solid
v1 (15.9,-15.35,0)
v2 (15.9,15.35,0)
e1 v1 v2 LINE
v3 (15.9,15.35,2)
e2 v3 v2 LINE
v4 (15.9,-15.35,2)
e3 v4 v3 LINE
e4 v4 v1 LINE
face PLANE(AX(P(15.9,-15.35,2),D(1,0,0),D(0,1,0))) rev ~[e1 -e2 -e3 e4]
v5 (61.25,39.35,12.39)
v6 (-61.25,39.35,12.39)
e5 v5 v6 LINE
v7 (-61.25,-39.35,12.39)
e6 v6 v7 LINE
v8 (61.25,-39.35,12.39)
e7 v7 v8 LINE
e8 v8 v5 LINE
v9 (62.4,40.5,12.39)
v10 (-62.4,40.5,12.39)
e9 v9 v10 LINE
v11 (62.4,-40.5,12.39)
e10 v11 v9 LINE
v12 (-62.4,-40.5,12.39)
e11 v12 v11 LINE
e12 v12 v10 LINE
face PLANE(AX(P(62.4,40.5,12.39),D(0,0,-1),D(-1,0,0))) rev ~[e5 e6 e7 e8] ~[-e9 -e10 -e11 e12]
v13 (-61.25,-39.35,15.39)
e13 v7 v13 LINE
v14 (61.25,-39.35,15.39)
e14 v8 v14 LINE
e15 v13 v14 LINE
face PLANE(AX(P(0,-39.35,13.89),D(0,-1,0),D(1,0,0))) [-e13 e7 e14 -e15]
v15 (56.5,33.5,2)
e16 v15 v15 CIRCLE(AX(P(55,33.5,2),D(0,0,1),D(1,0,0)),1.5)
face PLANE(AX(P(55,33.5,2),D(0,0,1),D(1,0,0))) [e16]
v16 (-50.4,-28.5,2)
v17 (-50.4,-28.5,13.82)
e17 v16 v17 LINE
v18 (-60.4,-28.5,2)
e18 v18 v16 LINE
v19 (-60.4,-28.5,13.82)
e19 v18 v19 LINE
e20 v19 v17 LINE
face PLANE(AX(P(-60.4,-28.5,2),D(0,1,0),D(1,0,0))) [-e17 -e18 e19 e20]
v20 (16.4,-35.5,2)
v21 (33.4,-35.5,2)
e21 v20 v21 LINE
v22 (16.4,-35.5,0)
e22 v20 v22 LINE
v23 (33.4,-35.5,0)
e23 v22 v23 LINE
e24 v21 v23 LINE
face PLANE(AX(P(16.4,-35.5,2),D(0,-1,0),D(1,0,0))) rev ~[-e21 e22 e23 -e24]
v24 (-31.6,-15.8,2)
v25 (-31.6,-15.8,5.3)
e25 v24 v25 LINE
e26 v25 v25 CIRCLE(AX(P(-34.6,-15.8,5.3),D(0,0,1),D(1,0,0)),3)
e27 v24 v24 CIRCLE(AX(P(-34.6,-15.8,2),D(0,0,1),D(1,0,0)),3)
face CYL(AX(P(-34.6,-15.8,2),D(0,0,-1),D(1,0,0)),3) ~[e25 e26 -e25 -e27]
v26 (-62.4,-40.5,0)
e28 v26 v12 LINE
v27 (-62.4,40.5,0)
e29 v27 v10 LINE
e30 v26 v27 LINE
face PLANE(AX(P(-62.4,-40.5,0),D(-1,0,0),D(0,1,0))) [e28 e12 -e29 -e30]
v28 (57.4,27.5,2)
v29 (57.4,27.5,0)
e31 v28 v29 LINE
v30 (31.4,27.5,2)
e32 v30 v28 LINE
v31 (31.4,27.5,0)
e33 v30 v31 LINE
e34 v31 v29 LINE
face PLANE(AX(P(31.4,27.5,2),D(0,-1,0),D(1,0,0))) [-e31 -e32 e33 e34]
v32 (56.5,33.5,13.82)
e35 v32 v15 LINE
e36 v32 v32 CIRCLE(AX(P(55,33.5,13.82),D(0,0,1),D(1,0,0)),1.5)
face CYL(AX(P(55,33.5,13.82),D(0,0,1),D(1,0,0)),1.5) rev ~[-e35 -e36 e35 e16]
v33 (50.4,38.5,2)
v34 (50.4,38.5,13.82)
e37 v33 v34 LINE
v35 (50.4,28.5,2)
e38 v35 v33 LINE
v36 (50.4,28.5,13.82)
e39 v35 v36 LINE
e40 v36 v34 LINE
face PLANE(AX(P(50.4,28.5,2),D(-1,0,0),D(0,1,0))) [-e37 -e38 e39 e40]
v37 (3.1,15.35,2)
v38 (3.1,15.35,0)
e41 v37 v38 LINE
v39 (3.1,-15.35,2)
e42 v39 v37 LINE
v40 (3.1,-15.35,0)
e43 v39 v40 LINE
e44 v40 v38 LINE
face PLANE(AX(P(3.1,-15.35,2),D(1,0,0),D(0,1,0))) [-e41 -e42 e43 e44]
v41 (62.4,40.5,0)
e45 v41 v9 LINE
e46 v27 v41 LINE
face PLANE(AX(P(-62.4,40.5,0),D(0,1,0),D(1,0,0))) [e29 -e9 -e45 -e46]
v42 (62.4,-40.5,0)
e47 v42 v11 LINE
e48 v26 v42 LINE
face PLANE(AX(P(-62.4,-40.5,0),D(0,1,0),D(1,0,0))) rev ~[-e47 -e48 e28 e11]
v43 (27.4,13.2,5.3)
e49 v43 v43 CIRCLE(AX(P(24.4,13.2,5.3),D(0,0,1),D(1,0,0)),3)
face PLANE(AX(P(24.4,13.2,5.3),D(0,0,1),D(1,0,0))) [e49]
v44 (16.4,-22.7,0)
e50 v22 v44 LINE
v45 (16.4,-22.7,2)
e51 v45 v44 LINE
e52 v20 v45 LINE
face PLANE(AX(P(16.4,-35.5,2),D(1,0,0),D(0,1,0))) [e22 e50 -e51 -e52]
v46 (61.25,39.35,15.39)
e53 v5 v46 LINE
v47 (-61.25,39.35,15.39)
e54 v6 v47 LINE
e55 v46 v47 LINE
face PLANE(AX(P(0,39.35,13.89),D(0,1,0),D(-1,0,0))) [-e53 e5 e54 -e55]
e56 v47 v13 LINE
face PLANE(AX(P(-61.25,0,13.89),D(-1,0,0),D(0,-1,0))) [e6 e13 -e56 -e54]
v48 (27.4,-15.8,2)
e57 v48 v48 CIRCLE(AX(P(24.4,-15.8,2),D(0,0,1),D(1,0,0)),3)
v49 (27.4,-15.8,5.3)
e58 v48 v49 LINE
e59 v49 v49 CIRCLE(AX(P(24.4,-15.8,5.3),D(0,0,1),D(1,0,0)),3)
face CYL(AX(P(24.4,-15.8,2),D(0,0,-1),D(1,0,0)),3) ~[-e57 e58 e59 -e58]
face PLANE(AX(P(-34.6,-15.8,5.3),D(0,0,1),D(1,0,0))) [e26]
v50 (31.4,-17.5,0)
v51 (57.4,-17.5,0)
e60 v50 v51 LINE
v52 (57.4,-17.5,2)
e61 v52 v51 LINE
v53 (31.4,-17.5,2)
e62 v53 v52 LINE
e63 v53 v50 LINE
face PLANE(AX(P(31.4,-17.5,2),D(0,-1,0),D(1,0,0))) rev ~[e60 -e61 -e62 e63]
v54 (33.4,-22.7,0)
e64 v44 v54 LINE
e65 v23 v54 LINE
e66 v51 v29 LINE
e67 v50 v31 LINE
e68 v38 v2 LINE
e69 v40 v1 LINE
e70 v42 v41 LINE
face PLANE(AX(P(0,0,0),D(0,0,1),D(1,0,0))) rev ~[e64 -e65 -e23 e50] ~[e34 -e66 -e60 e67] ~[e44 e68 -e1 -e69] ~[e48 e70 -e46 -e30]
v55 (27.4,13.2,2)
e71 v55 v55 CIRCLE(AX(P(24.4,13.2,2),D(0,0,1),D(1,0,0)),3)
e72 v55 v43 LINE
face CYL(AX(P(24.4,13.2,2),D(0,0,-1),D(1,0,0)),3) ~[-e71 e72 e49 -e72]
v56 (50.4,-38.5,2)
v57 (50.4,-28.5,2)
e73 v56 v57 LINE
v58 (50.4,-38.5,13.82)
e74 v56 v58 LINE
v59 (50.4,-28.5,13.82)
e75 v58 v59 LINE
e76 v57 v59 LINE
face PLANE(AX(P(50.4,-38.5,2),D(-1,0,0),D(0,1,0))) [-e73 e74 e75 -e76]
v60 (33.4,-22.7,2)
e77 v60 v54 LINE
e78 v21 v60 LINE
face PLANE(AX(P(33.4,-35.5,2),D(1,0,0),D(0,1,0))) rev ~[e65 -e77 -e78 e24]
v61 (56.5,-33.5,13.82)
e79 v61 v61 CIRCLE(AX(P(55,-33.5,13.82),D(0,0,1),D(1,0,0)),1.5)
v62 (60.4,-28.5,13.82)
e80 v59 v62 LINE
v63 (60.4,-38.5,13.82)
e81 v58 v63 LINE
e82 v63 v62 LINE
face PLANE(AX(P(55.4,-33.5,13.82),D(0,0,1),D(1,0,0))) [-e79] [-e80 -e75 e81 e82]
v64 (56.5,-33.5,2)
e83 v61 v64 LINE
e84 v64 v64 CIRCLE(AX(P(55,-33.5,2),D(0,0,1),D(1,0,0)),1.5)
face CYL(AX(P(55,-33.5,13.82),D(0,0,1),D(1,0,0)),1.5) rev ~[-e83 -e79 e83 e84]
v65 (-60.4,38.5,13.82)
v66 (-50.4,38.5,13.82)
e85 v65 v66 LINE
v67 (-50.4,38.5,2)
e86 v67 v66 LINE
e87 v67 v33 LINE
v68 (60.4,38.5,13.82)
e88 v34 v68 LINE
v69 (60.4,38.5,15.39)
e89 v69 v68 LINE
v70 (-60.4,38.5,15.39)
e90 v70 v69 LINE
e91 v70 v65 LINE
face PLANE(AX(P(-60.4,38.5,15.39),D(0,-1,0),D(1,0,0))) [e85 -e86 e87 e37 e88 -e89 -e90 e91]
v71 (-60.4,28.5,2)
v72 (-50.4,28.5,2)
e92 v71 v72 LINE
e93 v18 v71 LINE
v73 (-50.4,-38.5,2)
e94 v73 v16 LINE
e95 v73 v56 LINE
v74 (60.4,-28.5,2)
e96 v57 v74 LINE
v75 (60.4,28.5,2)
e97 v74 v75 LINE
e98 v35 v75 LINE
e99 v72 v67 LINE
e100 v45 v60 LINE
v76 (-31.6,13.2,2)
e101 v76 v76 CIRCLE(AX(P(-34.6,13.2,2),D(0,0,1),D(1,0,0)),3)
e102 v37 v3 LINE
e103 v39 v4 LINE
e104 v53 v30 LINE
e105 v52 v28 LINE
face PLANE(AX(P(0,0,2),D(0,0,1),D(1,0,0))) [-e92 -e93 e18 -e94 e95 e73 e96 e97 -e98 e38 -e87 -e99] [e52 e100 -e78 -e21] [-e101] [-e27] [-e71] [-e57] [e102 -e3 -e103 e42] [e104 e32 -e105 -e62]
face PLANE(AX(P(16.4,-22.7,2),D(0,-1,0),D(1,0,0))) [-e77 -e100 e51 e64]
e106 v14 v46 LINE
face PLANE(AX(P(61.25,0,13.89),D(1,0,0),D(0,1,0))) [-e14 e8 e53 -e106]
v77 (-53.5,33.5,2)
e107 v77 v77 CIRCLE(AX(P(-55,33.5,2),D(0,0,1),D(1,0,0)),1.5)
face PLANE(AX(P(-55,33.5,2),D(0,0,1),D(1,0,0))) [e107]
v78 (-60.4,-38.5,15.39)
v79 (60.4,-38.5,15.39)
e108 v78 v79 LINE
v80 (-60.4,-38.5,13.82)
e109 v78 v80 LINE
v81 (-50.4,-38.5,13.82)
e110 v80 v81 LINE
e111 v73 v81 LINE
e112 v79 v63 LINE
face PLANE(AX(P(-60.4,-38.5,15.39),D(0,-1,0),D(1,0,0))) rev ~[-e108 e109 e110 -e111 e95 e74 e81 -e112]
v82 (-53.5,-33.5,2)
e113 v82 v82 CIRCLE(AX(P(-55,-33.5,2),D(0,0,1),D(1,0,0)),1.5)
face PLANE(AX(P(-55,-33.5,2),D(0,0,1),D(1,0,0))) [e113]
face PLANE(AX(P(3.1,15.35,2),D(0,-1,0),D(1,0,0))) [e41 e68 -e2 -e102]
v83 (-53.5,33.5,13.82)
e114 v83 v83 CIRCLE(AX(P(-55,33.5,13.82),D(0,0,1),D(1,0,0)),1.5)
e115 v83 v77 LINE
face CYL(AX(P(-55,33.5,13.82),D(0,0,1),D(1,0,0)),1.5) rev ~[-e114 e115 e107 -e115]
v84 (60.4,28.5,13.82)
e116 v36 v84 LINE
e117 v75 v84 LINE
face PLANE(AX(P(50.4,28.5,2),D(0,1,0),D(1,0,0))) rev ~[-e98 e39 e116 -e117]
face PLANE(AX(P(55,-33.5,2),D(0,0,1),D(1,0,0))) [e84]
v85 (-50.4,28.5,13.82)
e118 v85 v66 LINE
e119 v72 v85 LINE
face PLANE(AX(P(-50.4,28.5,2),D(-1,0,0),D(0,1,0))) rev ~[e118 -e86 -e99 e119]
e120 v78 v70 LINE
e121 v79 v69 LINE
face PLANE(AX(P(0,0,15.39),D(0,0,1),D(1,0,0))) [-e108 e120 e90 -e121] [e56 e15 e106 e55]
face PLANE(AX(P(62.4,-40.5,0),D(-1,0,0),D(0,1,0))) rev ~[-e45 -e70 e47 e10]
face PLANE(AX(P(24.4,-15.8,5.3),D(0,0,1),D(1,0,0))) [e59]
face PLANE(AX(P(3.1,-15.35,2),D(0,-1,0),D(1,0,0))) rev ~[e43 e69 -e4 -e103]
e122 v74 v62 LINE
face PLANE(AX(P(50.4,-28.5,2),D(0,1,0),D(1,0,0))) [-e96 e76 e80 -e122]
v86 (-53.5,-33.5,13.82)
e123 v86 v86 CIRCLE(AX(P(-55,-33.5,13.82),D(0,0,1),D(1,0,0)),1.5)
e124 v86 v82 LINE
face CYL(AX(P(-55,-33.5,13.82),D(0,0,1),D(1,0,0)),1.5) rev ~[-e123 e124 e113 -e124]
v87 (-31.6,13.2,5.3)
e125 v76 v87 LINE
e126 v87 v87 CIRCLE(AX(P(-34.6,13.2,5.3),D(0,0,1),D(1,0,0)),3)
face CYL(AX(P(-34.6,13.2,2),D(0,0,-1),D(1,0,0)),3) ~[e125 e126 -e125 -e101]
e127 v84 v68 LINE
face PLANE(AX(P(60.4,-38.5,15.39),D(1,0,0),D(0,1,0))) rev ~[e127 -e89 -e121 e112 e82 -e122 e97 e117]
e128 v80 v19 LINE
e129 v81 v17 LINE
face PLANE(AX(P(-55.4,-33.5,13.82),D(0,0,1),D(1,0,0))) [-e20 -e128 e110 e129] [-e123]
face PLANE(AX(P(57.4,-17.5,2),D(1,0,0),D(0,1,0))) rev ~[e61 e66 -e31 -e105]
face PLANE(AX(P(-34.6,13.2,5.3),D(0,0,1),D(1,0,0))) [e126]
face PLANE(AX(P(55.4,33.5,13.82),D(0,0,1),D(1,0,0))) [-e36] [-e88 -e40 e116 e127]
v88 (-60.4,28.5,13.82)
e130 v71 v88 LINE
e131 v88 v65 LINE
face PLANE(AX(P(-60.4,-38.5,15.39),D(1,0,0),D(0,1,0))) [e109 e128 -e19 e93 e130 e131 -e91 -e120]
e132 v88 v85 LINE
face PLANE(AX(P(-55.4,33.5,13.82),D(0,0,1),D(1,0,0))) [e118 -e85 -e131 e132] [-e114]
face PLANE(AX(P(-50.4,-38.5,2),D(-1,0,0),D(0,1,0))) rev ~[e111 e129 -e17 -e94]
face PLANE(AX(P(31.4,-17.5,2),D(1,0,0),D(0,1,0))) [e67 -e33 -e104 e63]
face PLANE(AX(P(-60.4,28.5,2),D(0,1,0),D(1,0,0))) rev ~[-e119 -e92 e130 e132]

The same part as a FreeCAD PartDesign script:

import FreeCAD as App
import Part
import Sketcher
Q = App.Units.Quantity

doc = App.newDocument("Part")
body = doc.addObject("PartDesign::Body", "Body")

# Sketch on XY plane
sketch1 = body.newObject("Sketcher::SketchObject", "Sketch")
sketch1.AttachmentSupport = (doc.getObject("XY_Plane"), [""])
sketch1.MapMode = "FlatFace"
sketch1.addGeometry(Part.LineSegment(App.Vector(-62.4, 40.5, 0), App.Vector(-62.4, -40.5, 0)), False)
sketch1.addGeometry(Part.LineSegment(App.Vector(-62.4, -40.5, 0), App.Vector(62.4, -40.5, 0)), False)
sketch1.addGeometry(Part.LineSegment(App.Vector(62.4, -40.5, 0), App.Vector(62.4, 40.5, 0)), False)
sketch1.addGeometry(Part.LineSegment(App.Vector(62.4, 40.5, 0), App.Vector(-62.4, 40.5, 0)), False)
sketch1.addConstraint(Sketcher.Constraint("Coincident", 0, 2, 1, 1))
sketch1.addConstraint(Sketcher.Constraint("Coincident", 1, 2, 2, 1))
sketch1.addConstraint(Sketcher.Constraint("Coincident", 2, 2, 3, 1))
sketch1.addConstraint(Sketcher.Constraint("Coincident", 3, 2, 0, 1))
sketch1.addConstraint(Sketcher.Constraint("Vertical", 0))
sketch1.addConstraint(Sketcher.Constraint("Horizontal", 1))
sketch1.addConstraint(Sketcher.Constraint("Vertical", 2))
sketch1.addConstraint(Sketcher.Constraint("Horizontal", 3))
sketch1.addConstraint(Sketcher.Constraint("Symmetric", 0, 2, 2, 2, -1, 1))
sketch1.addConstraint(Sketcher.Constraint("DistanceY", 0, 2, 0, 1, Q("81 mm")))
sketch1.addConstraint(Sketcher.Constraint("DistanceX", 1, 1, 1, 2, Q("124.8 mm")))
pad1 = body.newObject("PartDesign::Pad", "Pad")
pad1.Profile = sketch1
pad1.Length = 15.39

# Sketch on XY plane
sketch2 = body.newObject("Sketcher::SketchObject", "Sketch001")
sketch2.AttachmentSupport = (doc.getObject("XY_Plane"), [""])
sketch2.MapMode = "FlatFace"
sketch2.AttachmentOffset = App.Placement(App.Vector(0, 0, 15.39), App.Rotation())
sketch2.addGeometry(Part.LineSegment(App.Vector(-60.4, 38.5, 0), App.Vector(-60.4, -38.5, 0)), False)
sketch2.addGeometry(Part.LineSegment(App.Vector(-60.4, -38.5, 0), App.Vector(60.4, -38.5, 0)), False)
sketch2.addGeometry(Part.LineSegment(App.Vector(60.4, -38.5, 0), App.Vector(60.4, 38.5, 0)), False)
sketch2.addGeometry(Part.LineSegment(App.Vector(60.4, 38.5, 0), App.Vector(-60.4, 38.5, 0)), False)
sketch2.addConstraint(Sketcher.Constraint("Coincident", 0, 2, 1, 1))
sketch2.addConstraint(Sketcher.Constraint("Coincident", 1, 2, 2, 1))
sketch2.addConstraint(Sketcher.Constraint("Coincident", 2, 2, 3, 1))
sketch2.addConstraint(Sketcher.Constraint("Coincident", 3, 2, 0, 1))
sketch2.addConstraint(Sketcher.Constraint("Vertical", 0))
sketch2.addConstraint(Sketcher.Constraint("Horizontal", 1))
sketch2.addConstraint(Sketcher.Constraint("Vertical", 2))
sketch2.addConstraint(Sketcher.Constraint("Horizontal", 3))
sketch2.addConstraint(Sketcher.Constraint("Symmetric", 0, 2, 2, 2, -1, 1))
sketch2.addConstraint(Sketcher.Constraint("DistanceY", 0, 2, 0, 1, Q("77 mm")))
sketch2.addConstraint(Sketcher.Constraint("DistanceX", 1, 1, 1, 2, Q("120.8 mm")))
pocket1 = body.newObject("PartDesign::Pocket", "Pocket")
pocket1.Profile = sketch2
pocket1.Length = 13.39

# Sketch on XZ plane
sketch3 = body.newObject("Sketcher::SketchObject", "Sketch002")
sketch3.AttachmentSupport = (doc.getObject("XZ_Plane"), [""])
sketch3.MapMode = "FlatFace"
sketch3.AttachmentOffset = App.Placement(App.Vector(0, 0, -40.5), App.Rotation())
sketch3.addGeometry(Part.LineSegment(App.Vector(62.4, 15.39, 0), App.Vector(62.4, 12.39, 0)), False)
sketch3.addGeometry(Part.LineSegment(App.Vector(62.4, 12.39, 0), App.Vector(-62.4, 12.39, 0)), False)
sketch3.addGeometry(Part.LineSegment(App.Vector(-62.4, 12.39, 0), App.Vector(-62.4, 15.39, 0)), False)
sketch3.addGeometry(Part.LineSegment(App.Vector(-62.4, 15.39, 0), App.Vector(62.4, 15.39, 0)), False)
sketch3.addConstraint(Sketcher.Constraint("Coincident", 0, 2, 1, 1))
sketch3.addConstraint(Sketcher.Constraint("Coincident", 1, 2, 2, 1))
sketch3.addConstraint(Sketcher.Constraint("Coincident", 2, 2, 3, 1))
sketch3.addConstraint(Sketcher.Constraint("Coincident", 3, 2, 0, 1))
sketch3.addConstraint(Sketcher.Constraint("Vertical", 0))
sketch3.addConstraint(Sketcher.Constraint("Horizontal", 1))
sketch3.addConstraint(Sketcher.Constraint("Vertical", 2))
sketch3.addConstraint(Sketcher.Constraint("Horizontal", 3))
sketch3.addConstraint(Sketcher.Constraint("DistanceY", 0, 2, 0, 1, Q("3 mm")))
sketch3.addConstraint(Sketcher.Constraint("DistanceX", 1, 2, 1, 1, Q("124.8 mm")))
sketch3.addConstraint(Sketcher.Constraint("DistanceX", -1, 1, 0, 2, Q("62.4 mm")))
sketch3.addConstraint(Sketcher.Constraint("DistanceY", -1, 1, 0, 2, Q("12.39 mm")))
pocket2 = body.newObject("PartDesign::Pocket", "Pocket001")
pocket2.Profile = sketch3
pocket2.Length = 1.15
pocket2.Reversed = True

# Sketch on XZ plane
sketch4 = body.newObject("Sketcher::SketchObject", "Sketch003")
sketch4.AttachmentSupport = (doc.getObject("XZ_Plane"), [""])
sketch4.MapMode = "FlatFace"
sketch4.AttachmentOffset = App.Placement(App.Vector(0, 0, 40.5), App.Rotation())
sketch4.addGeometry(Part.LineSegment(App.Vector(-62.4, 15.39, 0), App.Vector(-62.4, 12.39, 0)), False)
sketch4.addGeometry(Part.LineSegment(App.Vector(-62.4, 12.39, 0), App.Vector(62.4, 12.39, 0)), False)
sketch4.addGeometry(Part.LineSegment(App.Vector(62.4, 12.39, 0), App.Vector(62.4, 15.39, 0)), False)
sketch4.addGeometry(Part.LineSegment(App.Vector(62.4, 15.39, 0), App.Vector(-62.4, 15.39, 0)), False)
sketch4.addConstraint(Sketcher.Constraint("Coincident", 0, 2, 1, 1))
sketch4.addConstraint(Sketcher.Constraint("Coincident", 1, 2, 2, 1))
sketch4.addConstraint(Sketcher.Constraint("Coincident", 2, 2, 3, 1))
sketch4.addConstraint(Sketcher.Constraint("Coincident", 3, 2, 0, 1))
sketch4.addConstraint(Sketcher.Constraint("Vertical", 0))
sketch4.addConstraint(Sketcher.Constraint("Horizontal", 1))
sketch4.addConstraint(Sketcher.Constraint("Vertical", 2))
sketch4.addConstraint(Sketcher.Constraint("Horizontal", 3))
sketch4.addConstraint(Sketcher.Constraint("DistanceY", 0, 2, 0, 1, Q("3 mm")))
sketch4.addConstraint(Sketcher.Constraint("DistanceX", 1, 1, 1, 2, Q("124.8 mm")))
sketch4.addConstraint(Sketcher.Constraint("DistanceX", 0, 2, -1, 1, Q("62.4 mm")))
sketch4.addConstraint(Sketcher.Constraint("DistanceY", -1, 1, 0, 2, Q("12.39 mm")))
pocket3 = body.newObject("PartDesign::Pocket", "Pocket002")
pocket3.Profile = sketch4
pocket3.Length = 1.15

# Sketch on YZ plane
sketch5 = body.newObject("Sketcher::SketchObject", "Sketch004")
sketch5.AttachmentSupport = (doc.getObject("YZ_Plane"), [""])
sketch5.MapMode = "FlatFace"
sketch5.AttachmentOffset = App.Placement(App.Vector(0, 0, -62.4), App.Rotation())
sketch5.addGeometry(Part.LineSegment(App.Vector(39.35, 15.39, 0), App.Vector(39.35, 12.39, 0)), False)
sketch5.addGeometry(Part.LineSegment(App.Vector(39.35, 12.39, 0), App.Vector(-39.35, 12.39, 0)), False)
sketch5.addGeometry(Part.LineSegment(App.Vector(-39.35, 12.39, 0), App.Vector(-39.35, 15.39, 0)), False)
sketch5.addGeometry(Part.LineSegment(App.Vector(-39.35, 15.39, 0), App.Vector(39.35, 15.39, 0)), False)
sketch5.addConstraint(Sketcher.Constraint("Coincident", 0, 2, 1, 1))
sketch5.addConstraint(Sketcher.Constraint("Coincident", 1, 2, 2, 1))
sketch5.addConstraint(Sketcher.Constraint("Coincident", 2, 2, 3, 1))
sketch5.addConstraint(Sketcher.Constraint("Coincident", 3, 2, 0, 1))
sketch5.addConstraint(Sketcher.Constraint("Vertical", 0))
sketch5.addConstraint(Sketcher.Constraint("Horizontal", 1))
sketch5.addConstraint(Sketcher.Constraint("Vertical", 2))
sketch5.addConstraint(Sketcher.Constraint("Horizontal", 3))
sketch5.addConstraint(Sketcher.Constraint("DistanceY", 0, 2, 0, 1, Q("3 mm")))
sketch5.addConstraint(Sketcher.Constraint("DistanceX", 1, 2, 1, 1, Q("78.7 mm")))
sketch5.addConstraint(Sketcher.Constraint("DistanceX", -1, 1, 0, 2, Q("39.35 mm")))
sketch5.addConstraint(Sketcher.Constraint("DistanceY", -1, 1, 0, 2, Q("12.39 mm")))
pocket4 = body.newObject("PartDesign::Pocket", "Pocket003")
pocket4.Profile = sketch5
pocket4.Length = 1.15
pocket4.Reversed = True

# Sketch on YZ plane
sketch6 = body.newObject("Sketcher::SketchObject", "Sketch005")
sketch6.AttachmentSupport = (doc.getObject("YZ_Plane"), [""])
sketch6.MapMode = "FlatFace"
sketch6.AttachmentOffset = App.Placement(App.Vector(0, 0, 62.4), App.Rotation())
sketch6.addGeometry(Part.LineSegment(App.Vector(-39.35, 15.39, 0), App.Vector(-39.35, 12.39, 0)), False)
sketch6.addGeometry(Part.LineSegment(App.Vector(-39.35, 12.39, 0), App.Vector(39.35, 12.39, 0)), False)
sketch6.addGeometry(Part.LineSegment(App.Vector(39.35, 12.39, 0), App.Vector(39.35, 15.39, 0)), False)
sketch6.addGeometry(Part.LineSegment(App.Vector(39.35, 15.39, 0), App.Vector(-39.35, 15.39, 0)), False)
sketch6.addConstraint(Sketcher.Constraint("Coincident", 0, 2, 1, 1))
sketch6.addConstraint(Sketcher.Constraint("Coincident", 1, 2, 2, 1))
sketch6.addConstraint(Sketcher.Constraint("Coincident", 2, 2, 3, 1))
sketch6.addConstraint(Sketcher.Constraint("Coincident", 3, 2, 0, 1))
sketch6.addConstraint(Sketcher.Constraint("Vertical", 0))
sketch6.addConstraint(Sketcher.Constraint("Horizontal", 1))
sketch6.addConstraint(Sketcher.Constraint("Vertical", 2))
sketch6.addConstraint(Sketcher.Constraint("Horizontal", 3))
sketch6.addConstraint(Sketcher.Constraint("DistanceY", 0, 2, 0, 1, Q("3 mm")))
sketch6.addConstraint(Sketcher.Constraint("DistanceX", 1, 1, 1, 2, Q("78.7 mm")))
sketch6.addConstraint(Sketcher.Constraint("DistanceX", 0, 2, -1, 1, Q("39.35 mm")))
sketch6.addConstraint(Sketcher.Constraint("DistanceY", -1, 1, 0, 2, Q("12.39 mm")))
pocket5 = body.newObject("PartDesign::Pocket", "Pocket004")
pocket5.Profile = sketch6
pocket5.Length = 1.15

# Sketch on XY plane
sketch7 = body.newObject("Sketcher::SketchObject", "Sketch006")
sketch7.AttachmentSupport = (doc.getObject("XY_Plane"), [""])
sketch7.MapMode = "FlatFace"
sketch7.AttachmentOffset = App.Placement(App.Vector(0, 0, 2), App.Rotation())
sketch7.addGeometry(Part.LineSegment(App.Vector(-60.4, 38.5, 0), App.Vector(-60.4, 28.5, 0)), False)
sketch7.addGeometry(Part.LineSegment(App.Vector(-60.4, 28.5, 0), App.Vector(-50.4, 28.5, 0)), False)
sketch7.addGeometry(Part.LineSegment(App.Vector(-50.4, 28.5, 0), App.Vector(-50.4, 38.5, 0)), False)
sketch7.addGeometry(Part.LineSegment(App.Vector(-50.4, 38.5, 0), App.Vector(-60.4, 38.5, 0)), False)
sketch7.addConstraint(Sketcher.Constraint("Coincident", 0, 2, 1, 1))
sketch7.addConstraint(Sketcher.Constraint("Coincident", 1, 2, 2, 1))
sketch7.addConstraint(Sketcher.Constraint("Coincident", 2, 2, 3, 1))
sketch7.addConstraint(Sketcher.Constraint("Coincident", 3, 2, 0, 1))
sketch7.addConstraint(Sketcher.Constraint("Vertical", 0))
sketch7.addConstraint(Sketcher.Constraint("Horizontal", 1))
sketch7.addConstraint(Sketcher.Constraint("Vertical", 2))
sketch7.addConstraint(Sketcher.Constraint("Horizontal", 3))
sketch7.addConstraint(Sketcher.Constraint("Equal", 3, 0))
sketch7.addConstraint(Sketcher.Constraint("DistanceX", 1, 1, 1, 2, Q("10 mm")))
sketch7.addConstraint(Sketcher.Constraint("DistanceX", 0, 2, -1, 1, Q("60.4 mm")))
sketch7.addConstraint(Sketcher.Constraint("DistanceY", -1, 1, 0, 2, Q("28.5 mm")))
pad2 = body.newObject("PartDesign::Pad", "Pad001")
pad2.Profile = sketch7
pad2.Length = 11.82

# Sketch on XY plane
sketch8 = body.newObject("Sketcher::SketchObject", "Sketch007")
sketch8.AttachmentSupport = (doc.getObject("XY_Plane"), [""])
sketch8.MapMode = "FlatFace"
sketch8.AttachmentOffset = App.Placement(App.Vector(0, 0, 2), App.Rotation())
sketch8.addGeometry(Part.LineSegment(App.Vector(-60.4, -28.5, 0), App.Vector(-60.4, -38.5, 0)), False)
sketch8.addGeometry(Part.LineSegment(App.Vector(-60.4, -38.5, 0), App.Vector(-50.4, -38.5, 0)), False)
sketch8.addGeometry(Part.LineSegment(App.Vector(-50.4, -38.5, 0), App.Vector(-50.4, -28.5, 0)), False)
sketch8.addGeometry(Part.LineSegment(App.Vector(-50.4, -28.5, 0), App.Vector(-60.4, -28.5, 0)), False)
sketch8.addConstraint(Sketcher.Constraint("Coincident", 0, 2, 1, 1))
sketch8.addConstraint(Sketcher.Constraint("Coincident", 1, 2, 2, 1))
sketch8.addConstraint(Sketcher.Constraint("Coincident", 2, 2, 3, 1))
sketch8.addConstraint(Sketcher.Constraint("Coincident", 3, 2, 0, 1))
sketch8.addConstraint(Sketcher.Constraint("Vertical", 0))
sketch8.addConstraint(Sketcher.Constraint("Horizontal", 1))
sketch8.addConstraint(Sketcher.Constraint("Vertical", 2))
sketch8.addConstraint(Sketcher.Constraint("Horizontal", 3))
sketch8.addConstraint(Sketcher.Constraint("Equal", 3, 0))
sketch8.addConstraint(Sketcher.Constraint("DistanceX", 1, 1, 1, 2, Q("10 mm")))
sketch8.addConstraint(Sketcher.Constraint("DistanceX", 0, 2, -1, 1, Q("60.4 mm")))
sketch8.addConstraint(Sketcher.Constraint("DistanceY", 0, 2, -1, 1, Q("38.5 mm")))
pad3 = body.newObject("PartDesign::Pad", "Pad002")
pad3.Profile = sketch8
pad3.Length = 11.82

# Sketch on XY plane
sketch9 = body.newObject("Sketcher::SketchObject", "Sketch008")
sketch9.AttachmentSupport = (doc.getObject("XY_Plane"), [""])
sketch9.MapMode = "FlatFace"
sketch9.AttachmentOffset = App.Placement(App.Vector(0, 0, 2), App.Rotation())
sketch9.addGeometry(Part.LineSegment(App.Vector(50.4, -28.5, 0), App.Vector(50.4, -38.5, 0)), False)
sketch9.addGeometry(Part.LineSegment(App.Vector(50.4, -38.5, 0), App.Vector(60.4, -38.5, 0)), False)
sketch9.addGeometry(Part.LineSegment(App.Vector(60.4, -38.5, 0), App.Vector(60.4, -28.5, 0)), False)
sketch9.addGeometry(Part.LineSegment(App.Vector(60.4, -28.5, 0), App.Vector(50.4, -28.5, 0)), False)
sketch9.addConstraint(Sketcher.Constraint("Coincident", 0, 2, 1, 1))
sketch9.addConstraint(Sketcher.Constraint("Coincident", 1, 2, 2, 1))
sketch9.addConstraint(Sketcher.Constraint("Coincident", 2, 2, 3, 1))
sketch9.addConstraint(Sketcher.Constraint("Coincident", 3, 2, 0, 1))
sketch9.addConstraint(Sketcher.Constraint("Vertical", 0))
sketch9.addConstraint(Sketcher.Constraint("Horizontal", 1))
sketch9.addConstraint(Sketcher.Constraint("Vertical", 2))
sketch9.addConstraint(Sketcher.Constraint("Horizontal", 3))
sketch9.addConstraint(Sketcher.Constraint("Equal", 3, 0))
sketch9.addConstraint(Sketcher.Constraint("DistanceX", 1, 1, 1, 2, Q("10 mm")))
sketch9.addConstraint(Sketcher.Constraint("DistanceX", -1, 1, 0, 2, Q("50.4 mm")))
sketch9.addConstraint(Sketcher.Constraint("DistanceY", 0, 2, -1, 1, Q("38.5 mm")))
pad4 = body.newObject("PartDesign::Pad", "Pad003")
pad4.Profile = sketch9
pad4.Length = 11.82

# Sketch on XY plane
sketch10 = body.newObject("Sketcher::SketchObject", "Sketch009")
sketch10.AttachmentSupport = (doc.getObject("XY_Plane"), [""])
sketch10.MapMode = "FlatFace"
sketch10.AttachmentOffset = App.Placement(App.Vector(0, 0, 2), App.Rotation())
sketch10.addGeometry(Part.LineSegment(App.Vector(50.4, 38.5, 0), App.Vector(50.4, 28.5, 0)), False)
sketch10.addGeometry(Part.LineSegment(App.Vector(50.4, 28.5, 0), App.Vector(60.4, 28.5, 0)), False)
sketch10.addGeometry(Part.LineSegment(App.Vector(60.4, 28.5, 0), App.Vector(60.4, 38.5, 0)), False)
sketch10.addGeometry(Part.LineSegment(App.Vector(60.4, 38.5, 0), App.Vector(50.4, 38.5, 0)), False)
sketch10.addConstraint(Sketcher.Constraint("Coincident", 0, 2, 1, 1))
sketch10.addConstraint(Sketcher.Constraint("Coincident", 1, 2, 2, 1))
sketch10.addConstraint(Sketcher.Constraint("Coincident", 2, 2, 3, 1))
sketch10.addConstraint(Sketcher.Constraint("Coincident", 3, 2, 0, 1))
sketch10.addConstraint(Sketcher.Constraint("Vertical", 0))
sketch10.addConstraint(Sketcher.Constraint("Horizontal", 1))
sketch10.addConstraint(Sketcher.Constraint("Vertical", 2))
sketch10.addConstraint(Sketcher.Constraint("Horizontal", 3))
sketch10.addConstraint(Sketcher.Constraint("Equal", 3, 0))
sketch10.addConstraint(Sketcher.Constraint("DistanceX", 1, 1, 1, 2, Q("10 mm")))
sketch10.addConstraint(Sketcher.Constraint("DistanceX", -1, 1, 0, 2, Q("50.4 mm")))
sketch10.addConstraint(Sketcher.Constraint("DistanceY", -1, 1, 0, 2, Q("28.5 mm")))
pad5 = body.newObject("PartDesign::Pad", "Pad004")
pad5.Profile = sketch10
pad5.Length = 11.82

# Sketch on XY plane
sketch11 = body.newObject("Sketcher::SketchObject", "Sketch010")
sketch11.AttachmentSupport = (doc.getObject("XY_Plane"), [""])
sketch11.MapMode = "FlatFace"
sketch11.AttachmentOffset = App.Placement(App.Vector(0, 0, 13.82), App.Rotation())
sketch11.addGeometry(Part.Circle(App.Vector(-55, 33.5, 0), App.Vector(0, 0, 1), 1.5), False)
sketch11.addConstraint(Sketcher.Constraint("Diameter", 0, Q("3 mm")))
sketch11.addConstraint(Sketcher.Constraint("DistanceX", 0, 3, -1, 1, Q("55 mm")))
sketch11.addConstraint(Sketcher.Constraint("DistanceY", -1, 1, 0, 3, Q("33.5 mm")))
pocket6 = body.newObject("PartDesign::Pocket", "Pocket005")
pocket6.Profile = sketch11
pocket6.Length = 11.82

# Sketch on XY plane
sketch12 = body.newObject("Sketcher::SketchObject", "Sketch011")
sketch12.AttachmentSupport = (doc.getObject("XY_Plane"), [""])
sketch12.MapMode = "FlatFace"
sketch12.AttachmentOffset = App.Placement(App.Vector(0, 0, 13.82), App.Rotation())
sketch12.addGeometry(Part.Circle(App.Vector(-55, -33.5, 0), App.Vector(0, 0, 1), 1.5), False)
sketch12.addConstraint(Sketcher.Constraint("Diameter", 0, Q("3 mm")))
sketch12.addConstraint(Sketcher.Constraint("DistanceX", 0, 3, -1, 1, Q("55 mm")))
sketch12.addConstraint(Sketcher.Constraint("DistanceY", 0, 3, -1, 1, Q("33.5 mm")))
pocket7 = body.newObject("PartDesign::Pocket", "Pocket006")
pocket7.Profile = sketch12
pocket7.Length = 11.82

# Sketch on XY plane
sketch13 = body.newObject("Sketcher::SketchObject", "Sketch012")
sketch13.AttachmentSupport = (doc.getObject("XY_Plane"), [""])
sketch13.MapMode = "FlatFace"
sketch13.AttachmentOffset = App.Placement(App.Vector(0, 0, 13.82), App.Rotation())
sketch13.addGeometry(Part.Circle(App.Vector(55, -33.5, 0), App.Vector(0, 0, 1), 1.5), False)
sketch13.addConstraint(Sketcher.Constraint("Diameter", 0, Q("3 mm")))
sketch13.addConstraint(Sketcher.Constraint("DistanceX", -1, 1, 0, 3, Q("55 mm")))
sketch13.addConstraint(Sketcher.Constraint("DistanceY", 0, 3, -1, 1, Q("33.5 mm")))
pocket8 = body.newObject("PartDesign::Pocket", "Pocket007")
pocket8.Profile = sketch13
pocket8.Length = 11.82

# Sketch on XY plane
sketch14 = body.newObject("Sketcher::SketchObject", "Sketch013")
sketch14.AttachmentSupport = (doc.getObject("XY_Plane"), [""])
sketch14.MapMode = "FlatFace"
sketch14.AttachmentOffset = App.Placement(App.Vector(0, 0, 13.82), App.Rotation())
sketch14.addGeometry(Part.Circle(App.Vector(55, 33.5, 0), App.Vector(0, 0, 1), 1.5), False)
sketch14.addConstraint(Sketcher.Constraint("Diameter", 0, Q("3 mm")))
sketch14.addConstraint(Sketcher.Constraint("DistanceX", -1, 1, 0, 3, Q("55 mm")))
sketch14.addConstraint(Sketcher.Constraint("DistanceY", -1, 1, 0, 3, Q("33.5 mm")))
pocket9 = body.newObject("PartDesign::Pocket", "Pocket008")
pocket9.Profile = sketch14
pocket9.Length = 11.82

# Sketch on XY plane
sketch15 = body.newObject("Sketcher::SketchObject", "Sketch014")
sketch15.AttachmentSupport = (doc.getObject("XY_Plane"), [""])
sketch15.MapMode = "FlatFace"
sketch15.AttachmentOffset = App.Placement(App.Vector(0, 0, 2), App.Rotation())
sketch15.addGeometry(Part.LineSegment(App.Vector(31.4, 27.5, 0), App.Vector(31.4, -17.5, 0)), False)
sketch15.addGeometry(Part.LineSegment(App.Vector(31.4, -17.5, 0), App.Vector(57.4, -17.5, 0)), False)
sketch15.addGeometry(Part.LineSegment(App.Vector(57.4, -17.5, 0), App.Vector(57.4, 27.5, 0)), False)
sketch15.addGeometry(Part.LineSegment(App.Vector(57.4, 27.5, 0), App.Vector(31.4, 27.5, 0)), False)
sketch15.addConstraint(Sketcher.Constraint("Coincident", 0, 2, 1, 1))
sketch15.addConstraint(Sketcher.Constraint("Coincident", 1, 2, 2, 1))
sketch15.addConstraint(Sketcher.Constraint("Coincident", 2, 2, 3, 1))
sketch15.addConstraint(Sketcher.Constraint("Coincident", 3, 2, 0, 1))
sketch15.addConstraint(Sketcher.Constraint("Vertical", 0))
sketch15.addConstraint(Sketcher.Constraint("Horizontal", 1))
sketch15.addConstraint(Sketcher.Constraint("Vertical", 2))
sketch15.addConstraint(Sketcher.Constraint("Horizontal", 3))
sketch15.addConstraint(Sketcher.Constraint("DistanceX", 1, 1, 1, 2, Q("26 mm")))
sketch15.addConstraint(Sketcher.Constraint("DistanceY", 0, 2, 0, 1, Q("45 mm")))
sketch15.addConstraint(Sketcher.Constraint("DistanceX", -1, 1, 0, 2, Q("31.4 mm")))
sketch15.addConstraint(Sketcher.Constraint("DistanceY", 0, 2, -1, 1, Q("17.5 mm")))
pocket10 = body.newObject("PartDesign::Pocket", "Pocket009")
pocket10.Profile = sketch15
pocket10.Type = "ThroughAll"

# Sketch on XY plane
sketch16 = body.newObject("Sketcher::SketchObject", "Sketch015")
sketch16.AttachmentSupport = (doc.getObject("XY_Plane"), [""])
sketch16.MapMode = "FlatFace"
sketch16.AttachmentOffset = App.Placement(App.Vector(0, 0, 2), App.Rotation())
sketch16.addGeometry(Part.LineSegment(App.Vector(3.1, 15.35, 0), App.Vector(3.1, -15.35, 0)), False)
sketch16.addGeometry(Part.LineSegment(App.Vector(3.1, -15.35, 0), App.Vector(15.9, -15.35, 0)), False)
sketch16.addGeometry(Part.LineSegment(App.Vector(15.9, -15.35, 0), App.Vector(15.9, 15.35, 0)), False)
sketch16.addGeometry(Part.LineSegment(App.Vector(15.9, 15.35, 0), App.Vector(3.1, 15.35, 0)), False)
sketch16.addConstraint(Sketcher.Constraint("Coincident", 0, 2, 1, 1))
sketch16.addConstraint(Sketcher.Constraint("Coincident", 1, 2, 2, 1))
sketch16.addConstraint(Sketcher.Constraint("Coincident", 2, 2, 3, 1))
sketch16.addConstraint(Sketcher.Constraint("Coincident", 3, 2, 0, 1))
sketch16.addConstraint(Sketcher.Constraint("Vertical", 0))
sketch16.addConstraint(Sketcher.Constraint("Horizontal", 1))
sketch16.addConstraint(Sketcher.Constraint("Vertical", 2))
sketch16.addConstraint(Sketcher.Constraint("Horizontal", 3))
sketch16.addConstraint(Sketcher.Constraint("DistanceX", 1, 1, 1, 2, Q("12.8 mm")))
sketch16.addConstraint(Sketcher.Constraint("DistanceY", 0, 2, 0, 1, Q("30.7 mm")))
sketch16.addConstraint(Sketcher.Constraint("DistanceX", -1, 1, 0, 2, Q("3.1 mm")))
sketch16.addConstraint(Sketcher.Constraint("DistanceY", 0, 2, -1, 1, Q("15.35 mm")))
pocket11 = body.newObject("PartDesign::Pocket", "Pocket010")
pocket11.Profile = sketch16
pocket11.Type = "ThroughAll"

# Sketch on XY plane
sketch17 = body.newObject("Sketcher::SketchObject", "Sketch016")
sketch17.AttachmentSupport = (doc.getObject("XY_Plane"), [""])
sketch17.MapMode = "FlatFace"
sketch17.AttachmentOffset = App.Placement(App.Vector(0, 0, 2), App.Rotation())
sketch17.addGeometry(Part.LineSegment(App.Vector(16.4, -22.7, 0), App.Vector(16.4, -35.5, 0)), False)
sketch17.addGeometry(Part.LineSegment(App.Vector(16.4, -35.5, 0), App.Vector(33.4, -35.5, 0)), False)
sketch17.addGeometry(Part.LineSegment(App.Vector(33.4, -35.5, 0), App.Vector(33.4, -22.7, 0)), False)
sketch17.addGeometry(Part.LineSegment(App.Vector(33.4, -22.7, 0), App.Vector(16.4, -22.7, 0)), False)
sketch17.addConstraint(Sketcher.Constraint("Coincident", 0, 2, 1, 1))
sketch17.addConstraint(Sketcher.Constraint("Coincident", 1, 2, 2, 1))
sketch17.addConstraint(Sketcher.Constraint("Coincident", 2, 2, 3, 1))
sketch17.addConstraint(Sketcher.Constraint("Coincident", 3, 2, 0, 1))
sketch17.addConstraint(Sketcher.Constraint("Vertical", 0))
sketch17.addConstraint(Sketcher.Constraint("Horizontal", 1))
sketch17.addConstraint(Sketcher.Constraint("Vertical", 2))
sketch17.addConstraint(Sketcher.Constraint("Horizontal", 3))
sketch17.addConstraint(Sketcher.Constraint("DistanceX", 1, 1, 1, 2, Q("17 mm")))
sketch17.addConstraint(Sketcher.Constraint("DistanceY", 0, 2, 0, 1, Q("12.8 mm")))
sketch17.addConstraint(Sketcher.Constraint("DistanceX", -1, 1, 0, 2, Q("16.4 mm")))
sketch17.addConstraint(Sketcher.Constraint("DistanceY", 0, 2, -1, 1, Q("35.5 mm")))
pocket12 = body.newObject("PartDesign::Pocket", "Pocket011")
pocket12.Profile = sketch17
pocket12.Type = "ThroughAll"

# Sketch on XY plane
sketch18 = body.newObject("Sketcher::SketchObject", "Sketch017")
sketch18.AttachmentSupport = (doc.getObject("XY_Plane"), [""])
sketch18.MapMode = "FlatFace"
sketch18.AttachmentOffset = App.Placement(App.Vector(0, 0, 2), App.Rotation())
sketch18.addGeometry(Part.Circle(App.Vector(24.4, 13.2, 0), App.Vector(0, 0, 1), 3), False)
sketch18.addGeometry(Part.Circle(App.Vector(24.4, -15.8, 0), App.Vector(0, 0, 1), 3), False)
sketch18.addGeometry(Part.Circle(App.Vector(-34.6, 13.2, 0), App.Vector(0, 0, 1), 3), False)
sketch18.addGeometry(Part.Circle(App.Vector(-34.6, -15.8, 0), App.Vector(0, 0, 1), 3), False)
sketch18.addConstraint(Sketcher.Constraint("Equal", 0, 1))
sketch18.addConstraint(Sketcher.Constraint("Equal", 1, 2))
sketch18.addConstraint(Sketcher.Constraint("Equal", 2, 3))
sketch18.addConstraint(Sketcher.Constraint("Horizontal", 0, 3, 2, 3))
sketch18.addConstraint(Sketcher.Constraint("Horizontal", 1, 3, 3, 3))
sketch18.addConstraint(Sketcher.Constraint("Vertical", 0, 3, 1, 3))
sketch18.addConstraint(Sketcher.Constraint("Vertical", 2, 3, 3, 3))
sketch18.addConstraint(Sketcher.Constraint("Diameter", 0, Q("6 mm")))
sketch18.addConstraint(Sketcher.Constraint("DistanceY", 1, 3, 0, 3, Q("29 mm")))
sketch18.addConstraint(Sketcher.Constraint("DistanceX", 2, 3, 0, 3, Q("59 mm")))
sketch18.addConstraint(Sketcher.Constraint("DistanceX", -1, 1, 0, 3, Q("24.4 mm")))
sketch18.addConstraint(Sketcher.Constraint("DistanceY", -1, 1, 0, 3, Q("13.2 mm")))
pad6 = body.newObject("PartDesign::Pad", "Pad005")
pad6.Profile = sketch18
pad6.Length = 3.3

doc.recompute()
